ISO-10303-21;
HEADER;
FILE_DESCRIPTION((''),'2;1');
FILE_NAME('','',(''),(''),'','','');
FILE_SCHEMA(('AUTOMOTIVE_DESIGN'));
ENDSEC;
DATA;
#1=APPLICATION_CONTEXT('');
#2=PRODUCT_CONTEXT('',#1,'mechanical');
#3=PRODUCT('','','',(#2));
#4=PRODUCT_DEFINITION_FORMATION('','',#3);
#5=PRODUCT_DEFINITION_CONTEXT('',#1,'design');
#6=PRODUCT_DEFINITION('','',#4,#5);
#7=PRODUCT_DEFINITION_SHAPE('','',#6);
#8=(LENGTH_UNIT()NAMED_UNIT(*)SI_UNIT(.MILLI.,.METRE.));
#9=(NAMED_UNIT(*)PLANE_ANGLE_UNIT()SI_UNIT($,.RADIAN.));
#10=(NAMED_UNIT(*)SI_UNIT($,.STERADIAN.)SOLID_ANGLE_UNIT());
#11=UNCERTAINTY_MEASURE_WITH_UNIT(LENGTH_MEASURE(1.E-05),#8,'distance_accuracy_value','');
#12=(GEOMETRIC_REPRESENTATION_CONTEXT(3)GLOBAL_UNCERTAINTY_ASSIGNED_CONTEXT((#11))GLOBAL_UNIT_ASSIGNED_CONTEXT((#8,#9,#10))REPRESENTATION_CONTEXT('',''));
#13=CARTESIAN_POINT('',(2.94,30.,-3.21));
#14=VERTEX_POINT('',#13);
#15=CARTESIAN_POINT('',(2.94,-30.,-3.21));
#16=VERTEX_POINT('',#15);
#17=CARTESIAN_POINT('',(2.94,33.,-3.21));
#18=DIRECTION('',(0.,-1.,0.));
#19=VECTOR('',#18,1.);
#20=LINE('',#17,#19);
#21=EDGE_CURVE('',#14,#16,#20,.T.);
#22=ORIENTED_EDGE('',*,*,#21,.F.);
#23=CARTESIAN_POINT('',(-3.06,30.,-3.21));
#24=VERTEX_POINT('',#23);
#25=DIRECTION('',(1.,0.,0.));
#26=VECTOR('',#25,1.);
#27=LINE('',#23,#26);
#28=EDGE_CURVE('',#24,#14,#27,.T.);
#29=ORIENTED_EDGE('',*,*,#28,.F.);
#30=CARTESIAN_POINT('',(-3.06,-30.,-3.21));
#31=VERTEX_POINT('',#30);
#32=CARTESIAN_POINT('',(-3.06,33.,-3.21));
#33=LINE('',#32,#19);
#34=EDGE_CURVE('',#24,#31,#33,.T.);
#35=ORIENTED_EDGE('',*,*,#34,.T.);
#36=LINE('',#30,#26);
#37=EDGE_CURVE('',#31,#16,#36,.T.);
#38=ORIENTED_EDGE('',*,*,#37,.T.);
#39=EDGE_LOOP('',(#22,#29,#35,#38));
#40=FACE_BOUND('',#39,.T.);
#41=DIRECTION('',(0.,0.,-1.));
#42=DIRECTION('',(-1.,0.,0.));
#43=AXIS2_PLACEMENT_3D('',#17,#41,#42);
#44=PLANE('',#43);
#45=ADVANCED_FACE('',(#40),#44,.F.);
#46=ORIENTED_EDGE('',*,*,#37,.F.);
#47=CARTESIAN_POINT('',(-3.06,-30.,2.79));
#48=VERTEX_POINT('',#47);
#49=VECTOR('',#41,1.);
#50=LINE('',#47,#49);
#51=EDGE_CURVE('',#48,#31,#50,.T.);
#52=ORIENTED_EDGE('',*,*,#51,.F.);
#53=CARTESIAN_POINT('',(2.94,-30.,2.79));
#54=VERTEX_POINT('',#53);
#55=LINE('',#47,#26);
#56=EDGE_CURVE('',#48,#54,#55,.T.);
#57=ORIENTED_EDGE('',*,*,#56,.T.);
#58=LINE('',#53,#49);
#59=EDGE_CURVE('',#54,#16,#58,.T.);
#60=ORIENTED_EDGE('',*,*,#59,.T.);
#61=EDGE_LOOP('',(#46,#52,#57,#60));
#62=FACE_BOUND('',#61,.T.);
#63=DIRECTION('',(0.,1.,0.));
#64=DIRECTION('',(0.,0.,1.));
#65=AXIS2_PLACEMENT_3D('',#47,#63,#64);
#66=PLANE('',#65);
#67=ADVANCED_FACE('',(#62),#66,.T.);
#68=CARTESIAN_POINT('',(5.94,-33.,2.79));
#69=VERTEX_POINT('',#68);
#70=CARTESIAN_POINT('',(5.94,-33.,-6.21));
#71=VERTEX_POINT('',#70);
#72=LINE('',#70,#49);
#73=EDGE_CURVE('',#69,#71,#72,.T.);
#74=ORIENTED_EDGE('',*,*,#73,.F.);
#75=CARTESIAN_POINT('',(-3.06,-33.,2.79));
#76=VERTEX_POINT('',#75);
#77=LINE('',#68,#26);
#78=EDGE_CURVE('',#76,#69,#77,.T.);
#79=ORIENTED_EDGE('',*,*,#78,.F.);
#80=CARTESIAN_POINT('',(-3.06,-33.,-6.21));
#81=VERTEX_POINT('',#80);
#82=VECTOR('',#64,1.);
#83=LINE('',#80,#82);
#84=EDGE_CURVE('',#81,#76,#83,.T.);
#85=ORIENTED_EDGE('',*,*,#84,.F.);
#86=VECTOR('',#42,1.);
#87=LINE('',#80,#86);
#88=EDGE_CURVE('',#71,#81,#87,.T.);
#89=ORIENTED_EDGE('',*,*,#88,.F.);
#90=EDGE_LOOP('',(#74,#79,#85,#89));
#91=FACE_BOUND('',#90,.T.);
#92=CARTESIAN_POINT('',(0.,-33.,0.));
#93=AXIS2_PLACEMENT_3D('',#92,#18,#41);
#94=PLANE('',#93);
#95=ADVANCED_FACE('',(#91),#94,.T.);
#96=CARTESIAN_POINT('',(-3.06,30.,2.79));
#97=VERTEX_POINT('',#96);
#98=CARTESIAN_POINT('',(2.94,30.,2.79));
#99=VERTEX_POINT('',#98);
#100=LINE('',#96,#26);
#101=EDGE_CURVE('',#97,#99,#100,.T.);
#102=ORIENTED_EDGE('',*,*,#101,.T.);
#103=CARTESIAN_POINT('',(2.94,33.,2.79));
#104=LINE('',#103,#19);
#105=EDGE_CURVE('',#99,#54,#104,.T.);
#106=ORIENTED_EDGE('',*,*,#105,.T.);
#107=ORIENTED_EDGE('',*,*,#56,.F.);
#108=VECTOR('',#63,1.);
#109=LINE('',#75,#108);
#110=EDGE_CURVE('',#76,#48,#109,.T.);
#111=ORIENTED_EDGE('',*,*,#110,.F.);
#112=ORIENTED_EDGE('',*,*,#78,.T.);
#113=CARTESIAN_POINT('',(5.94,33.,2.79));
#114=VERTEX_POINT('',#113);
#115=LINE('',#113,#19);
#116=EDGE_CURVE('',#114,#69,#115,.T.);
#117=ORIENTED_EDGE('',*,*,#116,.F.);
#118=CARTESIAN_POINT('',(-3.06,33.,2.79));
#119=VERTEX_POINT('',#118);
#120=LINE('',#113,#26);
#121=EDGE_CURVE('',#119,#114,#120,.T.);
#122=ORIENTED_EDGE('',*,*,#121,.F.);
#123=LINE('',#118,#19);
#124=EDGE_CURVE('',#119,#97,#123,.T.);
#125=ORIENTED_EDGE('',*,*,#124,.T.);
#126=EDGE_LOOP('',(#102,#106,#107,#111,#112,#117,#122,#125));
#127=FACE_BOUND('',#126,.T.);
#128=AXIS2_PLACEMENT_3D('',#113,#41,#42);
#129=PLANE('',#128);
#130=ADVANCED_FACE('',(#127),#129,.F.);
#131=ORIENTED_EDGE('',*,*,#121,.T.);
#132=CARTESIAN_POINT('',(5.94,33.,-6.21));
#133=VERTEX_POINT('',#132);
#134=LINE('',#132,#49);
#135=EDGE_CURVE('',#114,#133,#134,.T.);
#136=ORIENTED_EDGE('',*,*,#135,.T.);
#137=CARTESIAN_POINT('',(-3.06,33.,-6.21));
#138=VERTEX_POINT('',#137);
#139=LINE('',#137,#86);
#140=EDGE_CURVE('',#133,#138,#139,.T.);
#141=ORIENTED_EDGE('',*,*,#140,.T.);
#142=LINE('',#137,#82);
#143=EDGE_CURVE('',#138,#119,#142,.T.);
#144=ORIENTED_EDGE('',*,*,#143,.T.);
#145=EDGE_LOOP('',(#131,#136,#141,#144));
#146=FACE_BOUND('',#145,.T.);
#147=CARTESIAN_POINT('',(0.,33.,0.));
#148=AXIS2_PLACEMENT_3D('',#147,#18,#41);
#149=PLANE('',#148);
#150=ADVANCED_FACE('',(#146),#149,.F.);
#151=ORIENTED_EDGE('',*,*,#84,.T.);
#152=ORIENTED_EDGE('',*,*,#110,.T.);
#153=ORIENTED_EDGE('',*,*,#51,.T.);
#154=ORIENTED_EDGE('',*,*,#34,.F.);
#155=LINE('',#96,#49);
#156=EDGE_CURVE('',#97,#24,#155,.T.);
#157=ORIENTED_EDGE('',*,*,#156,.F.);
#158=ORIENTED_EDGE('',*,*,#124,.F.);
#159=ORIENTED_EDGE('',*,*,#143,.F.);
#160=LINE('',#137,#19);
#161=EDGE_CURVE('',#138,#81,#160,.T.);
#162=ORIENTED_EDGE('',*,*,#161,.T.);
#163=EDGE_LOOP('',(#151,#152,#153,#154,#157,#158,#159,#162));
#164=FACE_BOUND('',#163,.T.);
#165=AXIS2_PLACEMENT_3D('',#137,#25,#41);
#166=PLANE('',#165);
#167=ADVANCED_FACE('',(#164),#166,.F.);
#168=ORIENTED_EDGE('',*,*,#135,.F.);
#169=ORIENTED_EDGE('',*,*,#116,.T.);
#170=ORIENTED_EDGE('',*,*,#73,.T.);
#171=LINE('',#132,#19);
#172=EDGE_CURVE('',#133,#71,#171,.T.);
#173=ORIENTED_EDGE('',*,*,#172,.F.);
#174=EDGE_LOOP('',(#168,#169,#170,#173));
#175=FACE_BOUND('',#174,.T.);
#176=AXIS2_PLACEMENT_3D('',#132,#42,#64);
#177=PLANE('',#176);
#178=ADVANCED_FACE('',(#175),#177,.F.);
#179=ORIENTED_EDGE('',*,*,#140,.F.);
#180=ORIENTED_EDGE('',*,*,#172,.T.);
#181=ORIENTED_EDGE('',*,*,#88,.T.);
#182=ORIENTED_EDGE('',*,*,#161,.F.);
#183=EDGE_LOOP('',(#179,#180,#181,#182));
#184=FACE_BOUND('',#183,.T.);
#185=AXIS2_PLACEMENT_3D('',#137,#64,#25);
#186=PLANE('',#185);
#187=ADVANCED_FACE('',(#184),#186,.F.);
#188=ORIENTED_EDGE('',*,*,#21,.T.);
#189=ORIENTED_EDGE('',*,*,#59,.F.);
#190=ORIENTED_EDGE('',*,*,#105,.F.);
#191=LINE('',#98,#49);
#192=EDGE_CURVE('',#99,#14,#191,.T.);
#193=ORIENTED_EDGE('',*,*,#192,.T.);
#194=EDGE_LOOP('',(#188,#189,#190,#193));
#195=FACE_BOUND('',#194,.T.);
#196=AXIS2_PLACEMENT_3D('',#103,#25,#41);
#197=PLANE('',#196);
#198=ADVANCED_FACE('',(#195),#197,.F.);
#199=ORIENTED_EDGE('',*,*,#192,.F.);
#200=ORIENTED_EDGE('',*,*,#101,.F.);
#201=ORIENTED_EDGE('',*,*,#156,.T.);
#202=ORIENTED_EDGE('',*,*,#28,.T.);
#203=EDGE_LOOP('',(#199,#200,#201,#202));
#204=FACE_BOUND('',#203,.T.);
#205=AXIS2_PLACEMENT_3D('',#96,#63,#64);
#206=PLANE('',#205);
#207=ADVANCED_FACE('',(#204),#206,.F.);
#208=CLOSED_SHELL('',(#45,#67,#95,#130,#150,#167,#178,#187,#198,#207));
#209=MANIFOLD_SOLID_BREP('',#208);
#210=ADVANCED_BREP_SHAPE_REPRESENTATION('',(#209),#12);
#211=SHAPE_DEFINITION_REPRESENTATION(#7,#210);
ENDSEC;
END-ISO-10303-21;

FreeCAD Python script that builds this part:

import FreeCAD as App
import Part
import Sketcher
Q = App.Units.Quantity

doc = App.newDocument("Part")
body = doc.addObject("PartDesign::Body", "Body")

sketch1 = body.newObject("Sketcher::SketchObject", "Sketch")
sketch1.AttachmentSupport = (doc.getObject("XZ_Plane"), [""])
sketch1.MapMode = "FlatFace"
sketch1.addGeometry(Part.LineSegment(App.Vector(5.9, -6.2, 0), App.Vector(-3.1, -6.2, 0)), False)
sketch1.addGeometry(Part.LineSegment(App.Vector(-3.1, -6.2, 0), App.Vector(-3.1, -3.2, 0)), False)
sketch1.addGeometry(Part.LineSegment(App.Vector(-3.1, -3.2, 0), App.Vector(2.9, -3.2, 0)), False)
sketch1.addGeometry(Part.LineSegment(App.Vector(2.9, -3.2, 0), App.Vector(2.9, 2.8, 0)), False)
sketch1.addGeometry(Part.LineSegment(App.Vector(2.9, 2.8, 0), App.Vector(5.9, 2.8, 0)), False)
sketch1.addGeometry(Part.LineSegment(App.Vector(5.9, 2.8, 0), App.Vector(5.9, -6.2, 0)), False)
sketch1.addConstraint(Sketcher.Constraint("Coincident", 0, 2, 1, 1))
sketch1.addConstraint(Sketcher.Constraint("Coincident", 1, 2, 2, 1))
sketch1.addConstraint(Sketcher.Constraint("Coincident", 2, 2, 3, 1))
sketch1.addConstraint(Sketcher.Constraint("Coincident", 3, 2, 4, 1))
sketch1.addConstraint(Sketcher.Constraint("Coincident", 4, 2, 5, 1))
sketch1.addConstraint(Sketcher.Constraint("Coincident", 5, 2, 0, 1))
sketch1.addConstraint(Sketcher.Constraint("Horizontal", 0))
sketch1.addConstraint(Sketcher.Constraint("Vertical", 1))
sketch1.addConstraint(Sketcher.Constraint("Horizontal", 2))
sketch1.addConstraint(Sketcher.Constraint("Vertical", 3))
sketch1.addConstraint(Sketcher.Constraint("Horizontal", 4))
sketch1.addConstraint(Sketcher.Constraint("Vertical", 5))
sketch1.addConstraint(Sketcher.Constraint("Equal", 4, 1))
sketch1.addConstraint(Sketcher.Constraint("Equal", 2, 3))
sketch1.addConstraint(Sketcher.Constraint("DistanceX", 0, 2, 0, 1, Q("9 mm")))
sketch1.addConstraint(Sketcher.Constraint("DistanceX", 2, 1, 2, 2, Q("6 mm")))
sketch1.addConstraint(Sketcher.Constraint("DistanceX", 0, 2, -1, 1, Q("3.06 mm")))
sketch1.addConstraint(Sketcher.Constraint("DistanceY", 0, 2, -1, 1, Q("6.21 mm")))
pad1 = body.newObject("PartDesign::Pad", "Pad")
pad1.Profile = sketch1
pad1.Length = 66
pad1.Midplane = True

sketch2 = body.newObject("Sketcher::SketchObject", "Sketch001")
sketch2.AttachmentSupport = (doc.getObject("XY_Plane"), [""])
sketch2.MapMode = "FlatFace"
sketch2.AttachmentOffset = App.Placement(App.Vector(0, 0, -3.21), App.Rotation())
sketch2.addGeometry(Part.LineSegment(App.Vector(-3.1, 33, 0), App.Vector(-3.1, 30, 0)), False)
sketch2.addGeometry(Part.LineSegment(App.Vector(-3.1, 30, 0), App.Vector(2.9, 30, 0)), False)
sketch2.addGeometry(Part.LineSegment(App.Vector(2.9, 30, 0), App.Vector(2.9, 33, 0)), False)
sketch2.addGeometry(Part.LineSegment(App.Vector(2.9, 33, 0), App.Vector(-3.1, 33, 0)), False)
sketch2.addConstraint(Sketcher.Constraint("Coincident", 0, 2, 1, 1))
sketch2.addConstraint(Sketcher.Constraint("Coincident", 1, 2, 2, 1))
sketch2.addConstraint(Sketcher.Constraint("Coincident", 2, 2, 3, 1))
sketch2.addConstraint(Sketcher.Constraint("Coincident", 3, 2, 0, 1))
sketch2.addConstraint(Sketcher.Constraint("Vertical", 0))
sketch2.addConstraint(Sketcher.Constraint("Horizontal", 1))
sketch2.addConstraint(Sketcher.Constraint("Vertical", 2))
sketch2.addConstraint(Sketcher.Constraint("Horizontal", 3))
sketch2.addConstraint(Sketcher.Constraint("DistanceX", 1, 1, 1, 2, Q("6 mm")))
sketch2.addConstraint(Sketcher.Constraint("DistanceY", 0, 2, 0, 1, Q("3 mm")))
sketch2.addConstraint(Sketcher.Constraint("DistanceY", -1, 1, 0, 2, Q("30 mm")))
sketch2.addConstraint(Sketcher.Constraint("DistanceX", 0, 2, -1, 1, Q("3.06 mm")))
pad2 = body.newObject("PartDesign::Pad", "Pad001")
pad2.Profile = sketch2
pad2.Length = 6
doc.recompute()

mirrored = body.newObject("PartDesign::Mirrored", "Mirrored")
mirrored.Originals = [pad2]
mirrored.MirrorPlane = (doc.getObject("XZ_Plane"), [""])
body.Tip = mirrored

doc.recompute()
